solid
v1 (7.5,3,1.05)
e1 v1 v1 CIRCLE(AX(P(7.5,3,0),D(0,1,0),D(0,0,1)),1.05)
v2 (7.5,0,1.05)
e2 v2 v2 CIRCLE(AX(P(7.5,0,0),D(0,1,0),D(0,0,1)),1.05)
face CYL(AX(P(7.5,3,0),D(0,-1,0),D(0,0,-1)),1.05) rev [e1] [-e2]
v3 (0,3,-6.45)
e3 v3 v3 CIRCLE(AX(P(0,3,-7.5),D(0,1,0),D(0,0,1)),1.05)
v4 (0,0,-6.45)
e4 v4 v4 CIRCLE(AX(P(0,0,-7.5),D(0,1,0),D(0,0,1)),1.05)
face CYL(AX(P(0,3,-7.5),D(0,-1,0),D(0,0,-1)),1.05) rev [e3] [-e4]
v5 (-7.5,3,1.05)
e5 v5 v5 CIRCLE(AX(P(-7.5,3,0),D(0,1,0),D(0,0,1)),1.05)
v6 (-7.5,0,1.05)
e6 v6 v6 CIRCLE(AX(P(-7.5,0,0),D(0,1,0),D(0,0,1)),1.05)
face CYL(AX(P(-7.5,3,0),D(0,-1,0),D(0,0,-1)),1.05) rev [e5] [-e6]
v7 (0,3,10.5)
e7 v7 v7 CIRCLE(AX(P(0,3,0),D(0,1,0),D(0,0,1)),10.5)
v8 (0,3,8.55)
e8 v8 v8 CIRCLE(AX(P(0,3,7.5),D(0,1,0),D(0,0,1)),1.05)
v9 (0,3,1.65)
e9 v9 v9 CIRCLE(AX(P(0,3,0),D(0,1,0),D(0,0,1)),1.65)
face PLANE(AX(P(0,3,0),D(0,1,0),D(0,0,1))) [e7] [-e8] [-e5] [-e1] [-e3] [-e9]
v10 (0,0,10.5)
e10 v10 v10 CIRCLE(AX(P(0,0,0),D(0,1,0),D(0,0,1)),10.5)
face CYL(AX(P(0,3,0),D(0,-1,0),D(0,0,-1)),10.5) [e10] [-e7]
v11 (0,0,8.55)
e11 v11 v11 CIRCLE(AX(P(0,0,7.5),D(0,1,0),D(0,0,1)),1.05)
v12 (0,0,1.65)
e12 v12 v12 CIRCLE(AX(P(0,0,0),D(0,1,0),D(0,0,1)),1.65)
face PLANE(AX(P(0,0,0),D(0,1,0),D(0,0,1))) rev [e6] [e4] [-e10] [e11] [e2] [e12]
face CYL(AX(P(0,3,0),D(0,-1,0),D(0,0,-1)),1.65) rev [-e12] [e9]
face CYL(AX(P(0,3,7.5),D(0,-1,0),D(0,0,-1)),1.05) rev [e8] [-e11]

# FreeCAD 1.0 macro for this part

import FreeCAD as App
import Part
import Sketcher

V = App.Vector

doc = App.newDocument("Part")
body = doc.addObject("PartDesign::Body", "Body")

sketch1 = body.newObject("Sketcher::SketchObject", "Sketch")
sketch1.AttachmentSupport = (doc.getObject("XZ_Plane"), [""])
sketch1.MapMode = "FlatFace"
sketch1.addGeometry([
    Part.Circle(V(0, 0, 0), V(0, 0, 1), 10.5),
    Part.Circle(V(0, -7.5, 0), V(0, 0, 1), 1.05),
    Part.Circle(V(-7.5, 0, 0), V(0, 0, 1), 1.05),
    Part.Circle(V(0, 0, 0), V(0, 0, 1), 1.65),
    Part.Circle(V(7.5, 0, 0), V(0, 0, 1), 1.05),
    Part.Circle(V(0, 7.5, 0), V(0, 0, 1), 1.05),
], False)
sketch1.addConstraint([
    Sketcher.Constraint("Coincident", 0, 3, -1, 1),
    Sketcher.Constraint("Coincident", 3, 3, -1, 1),
    Sketcher.Constraint("Equal", 1, 2),
    Sketcher.Constraint("Equal", 2, 4),
    Sketcher.Constraint("Equal", 4, 5),
    Sketcher.Constraint("Symmetric", 2, 3, 4, 3, -1, 1),
    Sketcher.Constraint("Symmetric", 1, 3, 5, 3, -1, 1),
    Sketcher.Constraint("PointOnObject", 1, 3, -2),
    Sketcher.Constraint("PointOnObject", 2, 3, -1),
    Sketcher.Constraint("Diameter", 0, 21.0),
    Sketcher.Constraint("Diameter", 1, 2.1),
    Sketcher.Constraint("Diameter", 3, 3.3),
    Sketcher.Constraint("DistanceX", 2, 3, 4, 3, 15.0),
    Sketcher.Constraint("DistanceY", 1, 3, 5, 3, 15.0),
])
pad1 = body.newObject("PartDesign::Pad", "Pad")
pad1.Profile = sketch1
pad1.Length = 3
pad1.Reversed = True

doc.recompute()
